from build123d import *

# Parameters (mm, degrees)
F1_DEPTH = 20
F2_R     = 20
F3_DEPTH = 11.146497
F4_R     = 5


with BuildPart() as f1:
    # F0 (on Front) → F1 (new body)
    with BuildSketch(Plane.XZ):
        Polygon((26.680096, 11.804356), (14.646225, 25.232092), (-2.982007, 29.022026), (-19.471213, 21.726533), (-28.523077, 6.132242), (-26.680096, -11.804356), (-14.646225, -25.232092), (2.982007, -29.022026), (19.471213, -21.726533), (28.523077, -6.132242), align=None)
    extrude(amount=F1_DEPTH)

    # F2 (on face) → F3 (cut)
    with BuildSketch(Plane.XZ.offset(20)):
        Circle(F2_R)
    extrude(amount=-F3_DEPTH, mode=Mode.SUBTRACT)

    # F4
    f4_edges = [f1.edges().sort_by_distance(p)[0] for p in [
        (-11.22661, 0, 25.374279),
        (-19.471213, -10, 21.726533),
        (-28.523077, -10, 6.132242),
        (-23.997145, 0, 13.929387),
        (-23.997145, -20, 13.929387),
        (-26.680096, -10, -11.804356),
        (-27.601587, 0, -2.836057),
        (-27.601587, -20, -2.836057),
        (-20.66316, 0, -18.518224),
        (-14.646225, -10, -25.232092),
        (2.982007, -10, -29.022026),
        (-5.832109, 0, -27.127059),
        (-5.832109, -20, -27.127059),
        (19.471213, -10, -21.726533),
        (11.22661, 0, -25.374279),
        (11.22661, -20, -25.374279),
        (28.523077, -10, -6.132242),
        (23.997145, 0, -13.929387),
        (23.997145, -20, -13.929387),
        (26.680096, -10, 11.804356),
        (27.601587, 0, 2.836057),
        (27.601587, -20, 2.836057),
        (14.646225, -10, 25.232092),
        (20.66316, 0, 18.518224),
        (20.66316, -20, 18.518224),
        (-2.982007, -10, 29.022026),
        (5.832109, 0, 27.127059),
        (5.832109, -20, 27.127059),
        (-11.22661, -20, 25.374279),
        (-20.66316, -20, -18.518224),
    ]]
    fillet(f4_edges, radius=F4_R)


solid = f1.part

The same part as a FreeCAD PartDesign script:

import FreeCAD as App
import Part
import Sketcher
from FreeCAD import Vector
Q = App.Units.Quantity


def edges_at(feature, points):
    """Names of the edges that pass closest to the given points."""
    edges = feature.Shape.Edges
    near = lambda p: min(range(len(edges)), key=lambda i: edges[i].distToShape(Part.Vertex(*p))[0])
    return sorted({f"Edge{near(p) + 1}" for p in points})


def add_polygon(sketch, points):
    """Adds a closed chain of lines whose ends are joined by coincident constraints."""
    first, n = sketch.GeometryCount, len(points)
    for a, b in zip(points, points[1:] + points[:1]):
        sketch.addGeometry(Part.LineSegment(App.Vector(*a, 0), App.Vector(*b, 0)), False)
    for i in range(n):
        sketch.addConstraint(Sketcher.Constraint("Coincident", first + i, 2, first + (i + 1) % n, 1))

doc = App.newDocument("Part")
body = doc.addObject("PartDesign::Body", "Body")

# Sketch on XZ plane
sketch1 = body.newObject("Sketcher::SketchObject", "Sketch")
sketch1.AttachmentSupport = (doc.getObject("XZ_Plane"), [""])
sketch1.MapMode = "FlatFace"
add_polygon(sketch1, [(27, 12), (15, 25), (-3, 29), (-19, 22), (-29, 6), (-27, -12), (-15, -25), (3, -29), (19, -22), (29, -6)])  # lines 0-9
sketch1.addConstraint([
    Sketcher.Constraint("Symmetric", 0, 2, 5, 2, -1, 1),
    Sketcher.Constraint("Symmetric", 1, 2, 6, 2, -1, 1),
    Sketcher.Constraint("Symmetric", 2, 2, 7, 2, -1, 1),
    Sketcher.Constraint("Symmetric", 3, 2, 8, 2, -1, 1),
    Sketcher.Constraint("Symmetric", 4, 2, 9, 2, -1, 1),
    Sketcher.Constraint("Equal", 0, 1),
    Sketcher.Constraint("Equal", 1, 2),
    Sketcher.Constraint("Equal", 2, 3),
    Sketcher.Constraint("Equal", 3, 4),
    Sketcher.Constraint("DistanceY", 4, 2, 3, 2, Q("17.936598 mm")),
    Sketcher.Constraint("DistanceY", -1, 1, 3, 2, Q("6.132242 mm")),
    Sketcher.Constraint("DistanceY", 2, 2, 0, 2, Q("3.505559 mm")),
    Sketcher.Constraint("DistanceY", 3, 2, 2, 2, Q("15.594291 mm")),
    Sketcher.Constraint("DistanceX", 3, 2, 1, 2, Q("25.54107 mm")),
    Sketcher.Constraint("DistanceX", 3, 2, 4, 2, Q("1.842981 mm")),
])
pad1 = body.newObject("PartDesign::Pad", "Pad")
pad1.Profile = sketch1
pad1.Length = 20

# Sketch on XZ plane
sketch2 = body.newObject("Sketcher::SketchObject", "Sketch001")
sketch2.AttachmentSupport = (doc.getObject("XZ_Plane"), [""])
sketch2.MapMode = "FlatFace"
sketch2.AttachmentOffset = App.Placement(Vector(0, 0, 20), App.Rotation())
sketch2.addGeometry(Part.Circle(Vector(0, 0, 0), Vector(0, 0, 1), 20), False)
sketch2.addConstraint([
    Sketcher.Constraint("Coincident", 0, 3, -1, 1),
    Sketcher.Constraint("Diameter", 0, Q("40 mm")),
])
pocket1 = body.newObject("PartDesign::Pocket", "Pocket")
pocket1.Profile = sketch2
pocket1.Length = 11.146497
doc.recompute()

fillet = body.newObject("PartDesign::Fillet", "Fillet")
fillet.Base = (pocket1, edges_at(pocket1, [
    (-11.227, 0, 25.374),
    (-19.471, -10, 21.727),
    (-28.523, -10, 6.132),
    (-23.997, 0, 13.929),
    (-23.997, -20, 13.929),
    (-26.68, -10, -11.804),
    (-27.602, 0, -2.836),
    (-27.602, -20, -2.836),
    (-20.663, 0, -18.518),
    (-14.646, -10, -25.232),
    (2.982, -10, -29.022),
    (-5.832, 0, -27.127),
    (-5.832, -20, -27.127),
    (19.471, -10, -21.727),
    (11.227, 0, -25.374),
    (11.227, -20, -25.374),
    (28.523, -10, -6.132),
    (23.997, 0, -13.929),
    (23.997, -20, -13.929),
    (26.68, -10, 11.804),
    (27.602, 0, 2.836),
    (27.602, -20, 2.836),
    (14.646, -10, 25.232),
    (20.663, 0, 18.518),
    (20.663, -20, 18.518),
    (-2.982, -10, 29.022),
    (5.832, 0, 27.127),
    (5.832, -20, 27.127),
    (-11.227, -20, 25.374),
    (-20.663, -20, -18.518),
]))
fillet.Radius = 5

doc.recompute()
